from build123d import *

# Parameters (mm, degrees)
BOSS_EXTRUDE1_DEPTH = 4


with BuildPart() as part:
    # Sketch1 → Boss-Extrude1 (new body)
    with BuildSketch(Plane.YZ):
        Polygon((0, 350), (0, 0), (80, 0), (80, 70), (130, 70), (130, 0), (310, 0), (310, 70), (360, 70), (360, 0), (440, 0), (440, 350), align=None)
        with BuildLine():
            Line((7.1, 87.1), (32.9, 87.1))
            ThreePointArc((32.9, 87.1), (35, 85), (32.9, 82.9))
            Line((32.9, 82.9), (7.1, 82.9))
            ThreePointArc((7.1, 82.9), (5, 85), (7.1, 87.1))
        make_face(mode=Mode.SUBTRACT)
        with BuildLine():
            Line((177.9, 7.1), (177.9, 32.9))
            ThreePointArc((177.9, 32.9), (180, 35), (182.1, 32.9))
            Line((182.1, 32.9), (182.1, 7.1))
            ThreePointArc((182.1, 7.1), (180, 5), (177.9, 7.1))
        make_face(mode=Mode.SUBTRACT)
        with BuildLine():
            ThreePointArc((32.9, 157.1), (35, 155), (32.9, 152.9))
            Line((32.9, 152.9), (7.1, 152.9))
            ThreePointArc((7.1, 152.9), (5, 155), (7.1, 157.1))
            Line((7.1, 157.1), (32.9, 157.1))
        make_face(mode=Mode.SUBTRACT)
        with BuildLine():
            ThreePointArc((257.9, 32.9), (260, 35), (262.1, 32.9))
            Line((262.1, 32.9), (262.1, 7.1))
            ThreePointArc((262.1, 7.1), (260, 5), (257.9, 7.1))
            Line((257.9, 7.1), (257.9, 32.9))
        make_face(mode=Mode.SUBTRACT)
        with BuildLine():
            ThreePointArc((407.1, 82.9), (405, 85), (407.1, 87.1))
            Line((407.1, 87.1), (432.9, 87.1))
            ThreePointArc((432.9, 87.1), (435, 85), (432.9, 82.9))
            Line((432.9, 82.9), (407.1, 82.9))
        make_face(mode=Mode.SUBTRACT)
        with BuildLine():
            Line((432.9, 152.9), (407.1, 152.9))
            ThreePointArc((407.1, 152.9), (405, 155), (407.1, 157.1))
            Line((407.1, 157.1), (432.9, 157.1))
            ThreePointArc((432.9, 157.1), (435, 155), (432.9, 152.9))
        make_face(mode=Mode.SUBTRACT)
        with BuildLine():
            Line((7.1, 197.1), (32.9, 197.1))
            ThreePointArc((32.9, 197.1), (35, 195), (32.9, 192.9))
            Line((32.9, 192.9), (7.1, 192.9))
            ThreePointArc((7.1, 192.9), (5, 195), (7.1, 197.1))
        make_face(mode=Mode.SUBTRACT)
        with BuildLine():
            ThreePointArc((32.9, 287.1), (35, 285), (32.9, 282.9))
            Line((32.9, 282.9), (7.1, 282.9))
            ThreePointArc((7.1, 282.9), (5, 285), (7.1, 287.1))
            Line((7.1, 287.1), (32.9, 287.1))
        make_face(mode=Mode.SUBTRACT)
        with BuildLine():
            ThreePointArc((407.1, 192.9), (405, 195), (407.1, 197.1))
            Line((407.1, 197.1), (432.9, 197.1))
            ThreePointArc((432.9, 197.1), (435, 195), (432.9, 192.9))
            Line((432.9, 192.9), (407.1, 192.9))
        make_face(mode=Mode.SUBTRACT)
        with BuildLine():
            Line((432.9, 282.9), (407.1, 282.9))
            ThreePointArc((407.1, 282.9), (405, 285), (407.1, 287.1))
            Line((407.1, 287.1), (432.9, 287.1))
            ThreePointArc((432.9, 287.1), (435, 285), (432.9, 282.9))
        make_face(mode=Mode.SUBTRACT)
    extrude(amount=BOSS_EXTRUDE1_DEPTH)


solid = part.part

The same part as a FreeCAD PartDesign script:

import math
import FreeCAD as App
import Part
import Sketcher
from FreeCAD import Vector


def add_polygon(sketch, points):
    """Adds a closed chain of lines whose ends are joined by coincident constraints."""
    first, n = sketch.GeometryCount, len(points)
    for a, b in zip(points, points[1:] + points[:1]):
        sketch.addGeometry(Part.LineSegment(App.Vector(*a, 0), App.Vector(*b, 0)), False)
    for i in range(n):
        sketch.addConstraint(Sketcher.Constraint("Coincident", first + i, 2, first + (i + 1) % n, 1))

doc = App.newDocument("Part")
body = doc.addObject("PartDesign::Body", "Body")

# Sketch on YZ plane
sketch1 = body.newObject("Sketcher::SketchObject", "Sketch")
sketch1.AttachmentSupport = (doc.getObject("YZ_Plane"), [""])
sketch1.MapMode = "FlatFace"
add_polygon(sketch1, [(0, 350), (0, 0), (80, 0), (80, 70), (130, 70), (130, 0), (310, 0), (310, 70), (360, 70), (360, 0), (440, 0), (440, 350)])  # lines 0-11
sketch1.addGeometry(Part.ArcOfCircle(Part.Circle(Vector(180, 7.1, 0), Vector(0, 0, 1), 2.1), math.radians(180), math.radians(360)), False)  # 12
sketch1.addGeometry(Part.LineSegment(Vector(177.9, 7.1, 0), Vector(177.9, 32.9, 0)), False)  # 13
sketch1.addGeometry(Part.ArcOfCircle(Part.Circle(Vector(180, 32.9, 0), Vector(0, 0, 1), 2.1), math.radians(0), math.radians(180)), False)  # 14
sketch1.addGeometry(Part.LineSegment(Vector(182.1, 32.9, 0), Vector(182.1, 7.1, 0)), False)  # 15
sketch1.addGeometry(Part.ArcOfCircle(Part.Circle(Vector(7.1, 85, 0), Vector(0, 0, 1), 2.1), math.radians(90), math.radians(270)), False)  # 16
sketch1.addGeometry(Part.LineSegment(Vector(7.1, 87.1, 0), Vector(32.9, 87.1, 0)), False)  # 17
sketch1.addGeometry(Part.ArcOfCircle(Part.Circle(Vector(32.9, 85, 0), Vector(0, 0, 1), 2.1), math.radians(-90), math.radians(90)), False)  # 18
sketch1.addGeometry(Part.LineSegment(Vector(32.9, 82.9, 0), Vector(7.1, 82.9, 0)), False)  # 19
sketch1.addGeometry(Part.LineSegment(Vector(257.9, 7.1, 0), Vector(257.9, 32.9, 0)), False)  # 20
sketch1.addGeometry(Part.ArcOfCircle(Part.Circle(Vector(260, 32.9, 0), Vector(0, 0, 1), 2.1), math.radians(0), math.radians(180)), False)  # 21
sketch1.addGeometry(Part.LineSegment(Vector(262.1, 32.9, 0), Vector(262.1, 7.1, 0)), False)  # 22
sketch1.addGeometry(Part.ArcOfCircle(Part.Circle(Vector(260, 7.1, 0), Vector(0, 0, 1), 2.1), math.radians(180), math.radians(360)), False)  # 23
sketch1.addGeometry(Part.LineSegment(Vector(432.9, 82.9, 0), Vector(407.1, 82.9, 0)), False)  # 24
sketch1.addGeometry(Part.ArcOfCircle(Part.Circle(Vector(407.1, 85, 0), Vector(0, 0, 1), 2.1), math.radians(90), math.radians(270)), False)  # 25
sketch1.addGeometry(Part.LineSegment(Vector(407.1, 87.1, 0), Vector(432.9, 87.1, 0)), False)  # 26
sketch1.addGeometry(Part.ArcOfCircle(Part.Circle(Vector(432.9, 85, 0), Vector(0, 0, 1), 2.1), math.radians(-90), math.radians(90)), False)  # 27
sketch1.addGeometry(Part.LineSegment(Vector(7.1, 157.1, 0), Vector(32.9, 157.1, 0)), False)  # 28
sketch1.addGeometry(Part.ArcOfCircle(Part.Circle(Vector(32.9, 155, 0), Vector(0, 0, 1), 2.1), math.radians(-90), math.radians(90)), False)  # 29
sketch1.addGeometry(Part.LineSegment(Vector(32.9, 152.9, 0), Vector(7.1, 152.9, 0)), False)  # 30
sketch1.addGeometry(Part.ArcOfCircle(Part.Circle(Vector(7.1, 155, 0), Vector(0, 0, 1), 2.1), math.radians(90), math.radians(270)), False)  # 31
sketch1.addGeometry(Part.ArcOfCircle(Part.Circle(Vector(7.1, 195, 0), Vector(0, 0, 1), 2.1), math.radians(90), math.radians(270)), False)  # 32
sketch1.addGeometry(Part.LineSegment(Vector(7.1, 197.1, 0), Vector(32.9, 197.1, 0)), False)  # 33
sketch1.addGeometry(Part.ArcOfCircle(Part.Circle(Vector(32.9, 195, 0), Vector(0, 0, 1), 2.1), math.radians(-90), math.radians(90)), False)  # 34
sketch1.addGeometry(Part.LineSegment(Vector(32.9, 192.9, 0), Vector(7.1, 192.9, 0)), False)  # 35
sketch1.addGeometry(Part.LineSegment(Vector(7.1, 287.1, 0), Vector(32.9, 287.1, 0)), False)  # 36
sketch1.addGeometry(Part.ArcOfCircle(Part.Circle(Vector(32.9, 285, 0), Vector(0, 0, 1), 2.1), math.radians(-90), math.radians(90)), False)  # 37
sketch1.addGeometry(Part.LineSegment(Vector(32.9, 282.9, 0), Vector(7.1, 282.9, 0)), False)  # 38
sketch1.addGeometry(Part.ArcOfCircle(Part.Circle(Vector(7.1, 285, 0), Vector(0, 0, 1), 2.1), math.radians(90), math.radians(270)), False)  # 39
sketch1.addGeometry(Part.ArcOfCircle(Part.Circle(Vector(432.9, 155, 0), Vector(0, 0, 1), 2.1), math.radians(-90), math.radians(90)), False)  # 40
sketch1.addGeometry(Part.LineSegment(Vector(432.9, 152.9, 0), Vector(407.1, 152.9, 0)), False)  # 41
sketch1.addGeometry(Part.ArcOfCircle(Part.Circle(Vector(407.1, 155, 0), Vector(0, 0, 1), 2.1), math.radians(90), math.radians(270)), False)  # 42
sketch1.addGeometry(Part.LineSegment(Vector(407.1, 157.1, 0), Vector(432.9, 157.1, 0)), False)  # 43
sketch1.addGeometry(Part.LineSegment(Vector(432.9, 192.9, 0), Vector(407.1, 192.9, 0)), False)  # 44
sketch1.addGeometry(Part.ArcOfCircle(Part.Circle(Vector(407.1, 195, 0), Vector(0, 0, 1), 2.1), math.radians(90), math.radians(270)), False)  # 45
sketch1.addGeometry(Part.LineSegment(Vector(407.1, 197.1, 0), Vector(432.9, 197.1, 0)), False)  # 46
sketch1.addGeometry(Part.ArcOfCircle(Part.Circle(Vector(432.9, 195, 0), Vector(0, 0, 1), 2.1), math.radians(-90), math.radians(90)), False)  # 47
sketch1.addGeometry(Part.ArcOfCircle(Part.Circle(Vector(432.9, 285, 0), Vector(0, 0, 1), 2.1), math.radians(-90), math.radians(90)), False)  # 48
sketch1.addGeometry(Part.LineSegment(Vector(432.9, 282.9, 0), Vector(407.1, 282.9, 0)), False)  # 49
sketch1.addGeometry(Part.ArcOfCircle(Part.Circle(Vector(407.1, 285, 0), Vector(0, 0, 1), 2.1), math.radians(90), math.radians(270)), False)  # 50
sketch1.addGeometry(Part.LineSegment(Vector(407.1, 287.1, 0), Vector(432.9, 287.1, 0)), False)  # 51
sketch1.addConstraint([
    Sketcher.Constraint("Tangent", 12, 1, 13, 1),
    Sketcher.Constraint("Tangent", 13, 2, 14, 2),
    Sketcher.Constraint("Tangent", 14, 1, 15, 1),
    Sketcher.Constraint("Tangent", 15, 2, 12, 2),
    Sketcher.Constraint("Tangent", 16, 1, 17, 1),
    Sketcher.Constraint("Tangent", 17, 2, 18, 2),
    Sketcher.Constraint("Tangent", 18, 1, 19, 1),
    Sketcher.Constraint("Tangent", 19, 2, 16, 2),
    Sketcher.Constraint("Tangent", 20, 2, 21, 2),
    Sketcher.Constraint("Tangent", 21, 1, 22, 1),
    Sketcher.Constraint("Tangent", 22, 2, 23, 2),
    Sketcher.Constraint("Tangent", 23, 1, 20, 1),
    Sketcher.Constraint("Tangent", 24, 2, 25, 2),
    Sketcher.Constraint("Tangent", 25, 1, 26, 1),
    Sketcher.Constraint("Tangent", 26, 2, 27, 2),
    Sketcher.Constraint("Tangent", 27, 1, 24, 1),
    Sketcher.Constraint("Tangent", 28, 2, 29, 2),
    Sketcher.Constraint("Tangent", 29, 1, 30, 1),
    Sketcher.Constraint("Tangent", 30, 2, 31, 2),
    Sketcher.Constraint("Tangent", 31, 1, 28, 1),
    Sketcher.Constraint("Tangent", 32, 1, 33, 1),
    Sketcher.Constraint("Tangent", 33, 2, 34, 2),
    Sketcher.Constraint("Tangent", 34, 1, 35, 1),
    Sketcher.Constraint("Tangent", 35, 2, 32, 2),
    Sketcher.Constraint("Tangent", 36, 2, 37, 2),
    Sketcher.Constraint("Tangent", 37, 1, 38, 1),
    Sketcher.Constraint("Tangent", 38, 2, 39, 2),
    Sketcher.Constraint("Tangent", 39, 1, 36, 1),
    Sketcher.Constraint("Tangent", 40, 1, 41, 1),
    Sketcher.Constraint("Tangent", 41, 2, 42, 2),
    Sketcher.Constraint("Tangent", 42, 1, 43, 1),
    Sketcher.Constraint("Tangent", 43, 2, 40, 2),
    Sketcher.Constraint("Tangent", 44, 2, 45, 2),
    Sketcher.Constraint("Tangent", 45, 1, 46, 1),
    Sketcher.Constraint("Tangent", 46, 2, 47, 2),
    Sketcher.Constraint("Tangent", 47, 1, 44, 1),
    Sketcher.Constraint("Tangent", 48, 1, 49, 1),
    Sketcher.Constraint("Tangent", 49, 2, 50, 2),
    Sketcher.Constraint("Tangent", 50, 1, 51, 1),
    Sketcher.Constraint("Tangent", 51, 2, 48, 2),
    Sketcher.Constraint("Vertical", 0),
    Sketcher.Constraint("Horizontal", 1),
    Sketcher.Constraint("Vertical", 2),
    Sketcher.Constraint("Horizontal", 3),
    Sketcher.Constraint("Vertical", 4),
    Sketcher.Constraint("Horizontal", 5),
    Sketcher.Constraint("Vertical", 6),
    Sketcher.Constraint("Horizontal", 7),
    Sketcher.Constraint("Vertical", 8),
    Sketcher.Constraint("Horizontal", 9),
    Sketcher.Constraint("Vertical", 10),
    Sketcher.Constraint("Horizontal", 11),
    Sketcher.Constraint("Vertical", 13),
    Sketcher.Constraint("Vertical", 15),
    Sketcher.Constraint("Horizontal", 17),
    Sketcher.Constraint("Horizontal", 19),
    Sketcher.Constraint("Vertical", 20),
    Sketcher.Constraint("Vertical", 22),
    Sketcher.Constraint("Horizontal", 24),
    Sketcher.Constraint("Horizontal", 26),
    Sketcher.Constraint("Horizontal", 28),
    Sketcher.Constraint("Horizontal", 30),
    Sketcher.Constraint("Horizontal", 33),
    Sketcher.Constraint("Horizontal", 35),
    Sketcher.Constraint("Horizontal", 36),
    Sketcher.Constraint("Horizontal", 38),
    Sketcher.Constraint("Horizontal", 41),
    Sketcher.Constraint("Horizontal", 43),
    Sketcher.Constraint("Horizontal", 44),
    Sketcher.Constraint("Horizontal", 46),
    Sketcher.Constraint("Horizontal", 49),
    Sketcher.Constraint("Horizontal", 51),
    Sketcher.Constraint("Coincident", 0, 2, -1, 1),
    Sketcher.Constraint("Equal", 14, 16),
    Sketcher.Constraint("Equal", 18, 21),
    Sketcher.Constraint("Equal", 23, 25),
    Sketcher.Constraint("Equal", 27, 29),
    Sketcher.Constraint("Equal", 31, 32),
    Sketcher.Constraint("Equal", 34, 37),
    Sketcher.Constraint("Equal", 39, 40),
    Sketcher.Constraint("Equal", 42, 45),
    Sketcher.Constraint("Equal", 47, 48),
    Sketcher.Constraint("PointOnObject", 4, 2, -1),
    Sketcher.Constraint("PointOnObject", 8, 2, -1),
    Sketcher.Constraint("Horizontal", 14, 3, 21, 3),
    Sketcher.Constraint("Horizontal", 12, 3, 23, 3),
    Sketcher.Constraint("Horizontal", 18, 3, 25, 3),
    Sketcher.Constraint("Horizontal", 31, 3, 40, 3),
    Sketcher.Constraint("Horizontal", 34, 3, 45, 3),
    Sketcher.Constraint("Horizontal", 39, 3, 48, 3),
    Sketcher.Constraint("Horizontal", 3, 2, 6, 2),
    Sketcher.Constraint("Vertical", 18, 3, 29, 3),
    Sketcher.Constraint("Vertical", 16, 3, 31, 3),
    Sketcher.Constraint("Vertical", 31, 3, 32, 3),
    Sketcher.Constraint("Vertical", 29, 3, 34, 3),
    Sketcher.Constraint("Vertical", 34, 3, 37, 3),
    Sketcher.Constraint("Vertical", 32, 3, 39, 3),
    Sketcher.Constraint("Vertical", 27, 3, 40, 3),
    Sketcher.Constraint("Vertical", 25, 3, 42, 3),
    Sketcher.Constraint("Vertical", 42, 3, 45, 3),
    Sketcher.Constraint("Vertical", 40, 3, 47, 3),
    Sketcher.Constraint("Vertical", 47, 3, 48, 3),
    Sketcher.Constraint("Vertical", 45, 3, 50, 3),
    Sketcher.Constraint("Equal", 3, 7),
    Sketcher.Constraint("Equal", 1, 9),
    Sketcher.Constraint("Equal", 19, 24),
    Sketcher.Constraint("Equal", 51, 13),
    Sketcher.Constraint("Radius", 12, 2.1),
    Sketcher.Constraint("DistanceX", 1, 1, 1, 2, 80.0),
    Sketcher.Constraint("DistanceX", 3, 1, 3, 2, 50.0),
    Sketcher.Constraint("DistanceX", 5, 1, 5, 2, 180.0),
    Sketcher.Constraint("DistanceY", 0, 2, 0, 1, 350.0),
    Sketcher.Constraint("DistanceY", 2, 1, 2, 2, 70.0),
    Sketcher.Constraint("DistanceX", 17, 1, 17, 2, 25.8),
    Sketcher.Constraint("DistanceX", -1, 1, 12, 3, 180.0),
    Sketcher.Constraint("DistanceY", -1, 1, 16, 3, 85.0),
    Sketcher.Constraint("DistanceX", -1, 1, 21, 3, 260.0),
    Sketcher.Constraint("DistanceY", -1, 1, 29, 3, 155.0),
    Sketcher.Constraint("DistanceY", -1, 1, 32, 3, 195.0),
    Sketcher.Constraint("DistanceY", -1, 1, 37, 3, 285.0),
    Sketcher.Constraint("DistanceY", -1, 1, 12, 3, 7.1),
    Sketcher.Constraint("DistanceX", -1, 1, 16, 3, 7.1),
    Sketcher.Constraint("DistanceX", -1, 1, 25, 3, 407.1),
])
pad1 = body.newObject("PartDesign::Pad", "Pad")
pad1.Profile = sketch1
pad1.Length = 4

doc.recompute()
